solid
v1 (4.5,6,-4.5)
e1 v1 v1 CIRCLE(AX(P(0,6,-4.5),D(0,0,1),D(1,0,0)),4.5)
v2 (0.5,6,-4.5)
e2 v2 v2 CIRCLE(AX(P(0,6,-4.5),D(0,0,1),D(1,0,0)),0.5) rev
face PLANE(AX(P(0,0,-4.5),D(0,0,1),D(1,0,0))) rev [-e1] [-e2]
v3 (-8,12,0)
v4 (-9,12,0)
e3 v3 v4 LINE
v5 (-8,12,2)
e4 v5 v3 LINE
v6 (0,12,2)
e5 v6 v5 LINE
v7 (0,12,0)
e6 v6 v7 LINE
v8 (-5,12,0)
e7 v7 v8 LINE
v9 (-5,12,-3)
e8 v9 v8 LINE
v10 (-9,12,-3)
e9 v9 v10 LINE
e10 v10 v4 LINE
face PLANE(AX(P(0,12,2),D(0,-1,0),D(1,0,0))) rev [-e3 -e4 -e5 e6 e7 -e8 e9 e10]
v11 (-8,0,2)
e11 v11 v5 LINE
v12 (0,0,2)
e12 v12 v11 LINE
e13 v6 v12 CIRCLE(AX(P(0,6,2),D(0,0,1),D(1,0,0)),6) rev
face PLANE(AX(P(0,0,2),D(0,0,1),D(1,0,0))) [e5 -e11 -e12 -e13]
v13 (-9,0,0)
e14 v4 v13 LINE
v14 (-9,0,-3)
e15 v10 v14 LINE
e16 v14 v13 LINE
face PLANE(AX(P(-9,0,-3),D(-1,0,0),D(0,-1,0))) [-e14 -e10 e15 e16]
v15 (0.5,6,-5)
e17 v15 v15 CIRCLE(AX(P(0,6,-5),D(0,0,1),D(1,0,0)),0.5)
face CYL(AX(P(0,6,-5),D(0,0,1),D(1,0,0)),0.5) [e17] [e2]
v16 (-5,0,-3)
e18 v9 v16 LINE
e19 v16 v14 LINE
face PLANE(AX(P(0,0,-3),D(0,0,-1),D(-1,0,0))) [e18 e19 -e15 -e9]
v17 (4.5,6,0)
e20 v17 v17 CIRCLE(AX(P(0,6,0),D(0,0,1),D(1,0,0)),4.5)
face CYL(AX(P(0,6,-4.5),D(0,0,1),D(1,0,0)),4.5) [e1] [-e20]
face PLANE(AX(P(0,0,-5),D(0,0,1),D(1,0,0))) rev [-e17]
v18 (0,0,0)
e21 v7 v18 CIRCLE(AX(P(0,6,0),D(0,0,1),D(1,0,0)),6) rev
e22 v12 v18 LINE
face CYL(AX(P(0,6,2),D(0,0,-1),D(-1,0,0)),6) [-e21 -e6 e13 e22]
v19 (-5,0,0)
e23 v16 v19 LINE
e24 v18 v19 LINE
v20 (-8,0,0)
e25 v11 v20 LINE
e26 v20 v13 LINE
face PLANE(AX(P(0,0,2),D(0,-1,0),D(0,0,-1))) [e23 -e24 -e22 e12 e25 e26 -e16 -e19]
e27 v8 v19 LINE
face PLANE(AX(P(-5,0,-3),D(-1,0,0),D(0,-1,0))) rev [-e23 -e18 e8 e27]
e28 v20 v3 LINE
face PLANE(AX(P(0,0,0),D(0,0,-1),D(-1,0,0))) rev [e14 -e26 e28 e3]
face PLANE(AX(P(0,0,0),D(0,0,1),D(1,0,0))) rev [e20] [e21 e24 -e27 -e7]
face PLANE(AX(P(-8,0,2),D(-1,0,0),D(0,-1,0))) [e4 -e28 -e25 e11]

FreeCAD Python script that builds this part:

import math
import FreeCAD as App
import Part
import Sketcher
from FreeCAD import Vector


def add_polygon(sketch, points):
    """Adds a closed chain of lines whose ends are joined by coincident constraints."""
    first, n = sketch.GeometryCount, len(points)
    for a, b in zip(points, points[1:] + points[:1]):
        sketch.addGeometry(Part.LineSegment(App.Vector(*a, 0), App.Vector(*b, 0)), False)
    for i in range(n):
        sketch.addConstraint(Sketcher.Constraint("Coincident", first + i, 2, first + (i + 1) % n, 1))

doc = App.newDocument("Part")
body = doc.addObject("PartDesign::Body", "Body")

sketch1 = body.newObject("Sketcher::SketchObject", "Sketch")
sketch1.AttachmentSupport = (doc.getObject("XY_Plane"), [""])
sketch1.MapMode = "FlatFace"
sketch1.addGeometry([
    Part.LineSegment(Vector(-8, 12, 0), Vector(-8, 0, 0)),
    Part.LineSegment(Vector(-8, 0, 0), Vector(0, 0, 0)),
    Part.ArcOfCircle(Part.Circle(Vector(0, 6, 0), Vector(0, 0, 1), 6), math.radians(-90), math.radians(90)),
    Part.LineSegment(Vector(0, 12, 0), Vector(-8, 12, 0)),
], False)
sketch1.addConstraint([
    Sketcher.Constraint("Coincident", 0, 2, 1, 1),
    Sketcher.Constraint("Tangent", 1, 2, 2, 1),
    Sketcher.Constraint("Tangent", 2, 2, 3, 1),
    Sketcher.Constraint("Coincident", 3, 2, 0, 1),
    Sketcher.Constraint("Vertical", 0),
    Sketcher.Constraint("Horizontal", 1),
    Sketcher.Constraint("Horizontal", 3),
    Sketcher.Constraint("Coincident", 1, 2, -1, 1),
    Sketcher.Constraint("Radius", 2, 6.0),
    Sketcher.Constraint("DistanceX", 1, 1, 1, 2, 8.0),
])
pad1 = body.newObject("PartDesign::Pad", "Pad")
pad1.Profile = sketch1
pad1.Length = 2
body2 = doc.addObject("PartDesign::Body", "Body001")

sketch2 = body2.newObject("Sketcher::SketchObject", "Sketch001")
sketch2.AttachmentSupport = (doc.getObject("XY_Plane001"), [""])
sketch2.MapMode = "FlatFace"
sketch2.addGeometry([
    Part.ArcOfCircle(Part.Circle(Vector(0, 6, 0), Vector(0, 0, 1), 4.5), math.radians(90), math.radians(270)),
    Part.ArcOfCircle(Part.Circle(Vector(0, 6, 0), Vector(0, 0, 1), 4.5), math.radians(-90), math.radians(0)),
    Part.ArcOfCircle(Part.Circle(Vector(0, 6, 0), Vector(0, 0, 1), 4.5), math.radians(0), math.radians(90)),
], False)
sketch2.addConstraint([
    Sketcher.Constraint("Tangent", 0, 2, 1, 1),
    Sketcher.Constraint("Tangent", 1, 2, 2, 1),
    Sketcher.Constraint("Tangent", 2, 2, 0, 1),
    Sketcher.Constraint("PointOnObject", 0, 3, -2),
    Sketcher.Constraint("PointOnObject", 0, 2, -2),
    Sketcher.Constraint("PointOnObject", 2, 2, -2),
    Sketcher.Constraint("Horizontal", 2, 3, 1, 2),
    Sketcher.Constraint("Radius", 0, 4.5),
    Sketcher.Constraint("DistanceY", -1, 1, 0, 3, 6.0),
])
pad2 = body2.newObject("PartDesign::Pad", "Pad001")
pad2.Profile = sketch2
pad2.Length = 4.5
pad2.Reversed = True
doc.recompute()

boolean = body.newObject("PartDesign::Boolean", "Boolean")
boolean.Type = "Fuse"
boolean.addObjects([body2])

sketch3 = body.newObject("Sketcher::SketchObject", "Sketch002")
sketch3.AttachmentSupport = (doc.getObject("XY_Plane"), [""])
sketch3.MapMode = "FlatFace"
sketch3.addGeometry([
    Part.ArcOfCircle(Part.Circle(Vector(0, 6, 0), Vector(0, 0, 1), 0.5), math.radians(90), math.radians(270)),
    Part.ArcOfCircle(Part.Circle(Vector(0, 6, 0), Vector(0, 0, 1), 0.5), math.radians(-90), math.radians(0)),
    Part.ArcOfCircle(Part.Circle(Vector(0, 6, 0), Vector(0, 0, 1), 0.5), math.radians(0), math.radians(90)),
], False)
sketch3.addConstraint([
    Sketcher.Constraint("Tangent", 0, 2, 1, 1),
    Sketcher.Constraint("Tangent", 1, 2, 2, 1),
    Sketcher.Constraint("Tangent", 2, 2, 0, 1),
    Sketcher.Constraint("PointOnObject", 0, 3, -2),
    Sketcher.Constraint("PointOnObject", 0, 2, -2),
    Sketcher.Constraint("PointOnObject", 2, 2, -2),
    Sketcher.Constraint("Horizontal", 2, 3, 1, 2),
    Sketcher.Constraint("Radius", 0, 0.5),
    Sketcher.Constraint("DistanceY", -1, 1, 0, 3, 6.0),
])
pad3 = body.newObject("PartDesign::Pad", "Pad002")
pad3.Profile = sketch3
pad3.Length = 5
pad3.Reversed = True

sketch4 = body.newObject("Sketcher::SketchObject", "Sketch003")
sketch4.AttachmentSupport = (doc.getObject("XY_Plane"), [""])
sketch4.MapMode = "FlatFace"
add_polygon(sketch4, [(-9, 0), (-9, 12), (-5, 12), (-5, 0)])
sketch4.addConstraint([
    Sketcher.Constraint("Vertical", 0),
    Sketcher.Constraint("Horizontal", 1),
    Sketcher.Constraint("Vertical", 2),
    Sketcher.Constraint("Horizontal", 3),
    Sketcher.Constraint("PointOnObject", 2, 2, -1),
    Sketcher.Constraint("DistanceX", 1, 1, 1, 2, 4.0),
    Sketcher.Constraint("DistanceY", 0, 1, 0, 2, 12.0),
    Sketcher.Constraint("DistanceX", 0, 2, -1, 1, 9.0),
])
pad4 = body.newObject("PartDesign::Pad", "Pad003")
pad4.Profile = sketch4
pad4.Length = 3
pad4.Reversed = True

doc.recompute()
